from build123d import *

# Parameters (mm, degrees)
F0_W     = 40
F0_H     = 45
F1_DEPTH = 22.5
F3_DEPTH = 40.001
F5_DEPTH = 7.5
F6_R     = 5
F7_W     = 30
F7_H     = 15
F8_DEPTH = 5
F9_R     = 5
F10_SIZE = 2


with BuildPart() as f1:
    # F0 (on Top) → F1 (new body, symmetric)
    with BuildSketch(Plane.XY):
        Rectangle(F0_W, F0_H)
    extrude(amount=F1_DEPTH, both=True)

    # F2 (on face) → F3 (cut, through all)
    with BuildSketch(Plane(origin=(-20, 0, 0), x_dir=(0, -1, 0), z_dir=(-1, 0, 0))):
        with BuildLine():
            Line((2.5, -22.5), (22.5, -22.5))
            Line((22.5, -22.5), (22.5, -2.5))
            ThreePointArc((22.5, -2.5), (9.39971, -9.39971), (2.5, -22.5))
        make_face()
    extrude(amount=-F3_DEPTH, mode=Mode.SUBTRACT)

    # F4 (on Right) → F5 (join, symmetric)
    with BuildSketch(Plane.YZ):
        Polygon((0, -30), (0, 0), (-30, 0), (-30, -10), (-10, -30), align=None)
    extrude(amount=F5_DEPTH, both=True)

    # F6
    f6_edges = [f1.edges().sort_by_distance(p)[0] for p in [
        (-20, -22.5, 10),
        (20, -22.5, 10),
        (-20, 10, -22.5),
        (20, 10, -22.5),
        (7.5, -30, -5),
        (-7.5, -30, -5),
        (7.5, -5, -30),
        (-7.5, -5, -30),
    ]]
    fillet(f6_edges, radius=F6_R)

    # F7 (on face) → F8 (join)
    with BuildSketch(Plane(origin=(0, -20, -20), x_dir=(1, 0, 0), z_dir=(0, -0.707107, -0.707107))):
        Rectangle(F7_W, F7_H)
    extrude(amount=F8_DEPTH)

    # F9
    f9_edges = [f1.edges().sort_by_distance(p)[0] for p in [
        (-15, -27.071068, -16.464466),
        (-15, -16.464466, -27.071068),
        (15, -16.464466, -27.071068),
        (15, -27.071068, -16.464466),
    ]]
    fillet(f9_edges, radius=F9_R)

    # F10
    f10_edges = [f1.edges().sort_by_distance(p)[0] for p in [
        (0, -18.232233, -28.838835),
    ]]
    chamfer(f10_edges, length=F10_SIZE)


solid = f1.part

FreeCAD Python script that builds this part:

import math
import FreeCAD as App
import Part
import Sketcher
from FreeCAD import Vector


def edges_at(feature, points):
    """Names of the edges that pass closest to the given points."""
    edges = feature.Shape.Edges
    near = lambda p: min(range(len(edges)), key=lambda i: edges[i].distToShape(Part.Vertex(*p))[0])
    return sorted({f"Edge{near(p) + 1}" for p in points})


def add_polygon(sketch, points):
    """Adds a closed chain of lines whose ends are joined by coincident constraints."""
    first, n = sketch.GeometryCount, len(points)
    for a, b in zip(points, points[1:] + points[:1]):
        sketch.addGeometry(Part.LineSegment(App.Vector(*a, 0), App.Vector(*b, 0)), False)
    for i in range(n):
        sketch.addConstraint(Sketcher.Constraint("Coincident", first + i, 2, first + (i + 1) % n, 1))

doc = App.newDocument("Part")
body = doc.addObject("PartDesign::Body", "Body")

# Sketch on XY plane
sketch1 = body.newObject("Sketcher::SketchObject", "Sketch")
sketch1.AttachmentSupport = (doc.getObject("XY_Plane"), [""])
sketch1.MapMode = "FlatFace"
add_polygon(sketch1, [(-20, 22), (-20, -22), (20, -22), (20, 22)])  # lines 0-3
sketch1.addConstraint(Sketcher.Constraint("Vertical", 0))
sketch1.addConstraint(Sketcher.Constraint("Horizontal", 1))
sketch1.addConstraint(Sketcher.Constraint("Vertical", 2))
sketch1.addConstraint(Sketcher.Constraint("Horizontal", 3))
sketch1.addConstraint(Sketcher.Constraint("Symmetric", 0, 2, 2, 2, -1, 1))
sketch1.addConstraint(Sketcher.Constraint("DistanceX", 1, 1, 1, 2, 40.0))
sketch1.addConstraint(Sketcher.Constraint("DistanceY", 0, 2, 0, 1, 45.0))
pad1 = body.newObject("PartDesign::Pad", "Pad")
pad1.Profile = sketch1
pad1.Length = 45
pad1.Midplane = True

# Sketch on YZ plane
sketch2 = body.newObject("Sketcher::SketchObject", "Sketch001")
sketch2.AttachmentSupport = (doc.getObject("YZ_Plane"), [""])
sketch2.MapMode = "FlatFace"
sketch2.AttachmentOffset = App.Placement(Vector(0, 0, -20), App.Rotation())
sketch2.addGeometry(Part.LineSegment(Vector(-2, -22, 0), Vector(-22, -22, 0)), False)
sketch2.addGeometry(Part.LineSegment(Vector(-22, -22, 0), Vector(-22, -2, 0)), False)
sketch2.addGeometry(Part.ArcOfCircle(Part.Circle(Vector(-27, -27, 0), Vector(0, 0, 1), 25), math.radians(11), math.radians(79)), False)
sketch2.addConstraint(Sketcher.Constraint("Coincident", 0, 2, 1, 1))
sketch2.addConstraint(Sketcher.Constraint("Coincident", 1, 2, 2, 2))
sketch2.addConstraint(Sketcher.Constraint("Coincident", 2, 1, 0, 1))
sketch2.addConstraint(Sketcher.Constraint("Horizontal", 0))
sketch2.addConstraint(Sketcher.Constraint("Vertical", 1))
sketch2.addConstraint(Sketcher.Constraint("Equal", 0, 1))
sketch2.addConstraint(Sketcher.Constraint("Radius", 2, 24.999999))
sketch2.addConstraint(Sketcher.Constraint("DistanceX", 0, 2, 0, 1, 20.0))
sketch2.addConstraint(Sketcher.Constraint("DistanceX", 0, 2, -1, 1, 22.5))
sketch2.addConstraint(Sketcher.Constraint("DistanceY", 0, 2, -1, 1, 22.5))
pocket1 = body.newObject("PartDesign::Pocket", "Pocket")
pocket1.Profile = sketch2
pocket1.Type = "ThroughAll"
pocket1.Reversed = True

# Sketch on YZ plane
sketch3 = body.newObject("Sketcher::SketchObject", "Sketch002")
sketch3.AttachmentSupport = (doc.getObject("YZ_Plane"), [""])
sketch3.MapMode = "FlatFace"
add_polygon(sketch3, [(0, -30), (0, 0), (-30, 0), (-30, -10), (-10, -30)])  # lines 0-4
sketch3.addConstraint(Sketcher.Constraint("Vertical", 0))
sketch3.addConstraint(Sketcher.Constraint("Horizontal", 1))
sketch3.addConstraint(Sketcher.Constraint("Vertical", 2))
sketch3.addConstraint(Sketcher.Constraint("Horizontal", 4))
sketch3.addConstraint(Sketcher.Constraint("Coincident", 0, 2, -1, 1))
sketch3.addConstraint(Sketcher.Constraint("Equal", 1, 0))
sketch3.addConstraint(Sketcher.Constraint("Equal", 4, 2))
sketch3.addConstraint(Sketcher.Constraint("DistanceX", 1, 2, 1, 1, 30.0))
sketch3.addConstraint(Sketcher.Constraint("DistanceX", 4, 1, 4, 2, 10.0))
pad2 = body.newObject("PartDesign::Pad", "Pad001")
pad2.Profile = sketch3
pad2.Length = 15
pad2.Midplane = True
doc.recompute()

fillet = body.newObject("PartDesign::Fillet", "Fillet")
fillet.Base = (pad2, edges_at(pad2, [
    (-20, -22.5, 10),
    (20, -22.5, 10),
    (-20, 10, -22.5),
    (20, 10, -22.5),
    (7.5, -30, -5),
    (-7.5, -30, -5),
    (7.5, -5, -30),
    (-7.5, -5, -30),
]))
fillet.Radius = 5

# Sketch on an angled plane
sketch4 = body.newObject("Sketcher::SketchObject", "Sketch003")
sketch4.Placement = App.Placement(Vector(0, -20, -20), App.Rotation(Vector(1, 0, 0), Vector(0, -0.707106781, 0.707106781), Vector(0, -0.707106781, -0.707106781), "ZXY"))
add_polygon(sketch4, [(-15, 7), (-15, -7), (15, -7), (15, 7)])  # lines 0-3
sketch4.addConstraint(Sketcher.Constraint("Vertical", 0))
sketch4.addConstraint(Sketcher.Constraint("Horizontal", 1))
sketch4.addConstraint(Sketcher.Constraint("Vertical", 2))
sketch4.addConstraint(Sketcher.Constraint("Horizontal", 3))
sketch4.addConstraint(Sketcher.Constraint("Symmetric", 0, 2, 2, 2, -1, 1))
sketch4.addConstraint(Sketcher.Constraint("DistanceX", 1, 1, 1, 2, 30.0))
sketch4.addConstraint(Sketcher.Constraint("DistanceY", 0, 2, 0, 1, 15.0))
pad3 = body.newObject("PartDesign::Pad", "Pad002")
pad3.Profile = sketch4
pad3.Length = 5
doc.recompute()

fillet2 = body.newObject("PartDesign::Fillet", "Fillet001")
fillet2.Base = (pad3, edges_at(pad3, [
    (-15, -27.071, -16.464),
    (-15, -16.464, -27.071),
    (15, -16.464, -27.071),
    (15, -27.071, -16.464),
]))
fillet2.Radius = 5
doc.recompute()

chamfer = body.newObject("PartDesign::Chamfer", "Chamfer")
chamfer.Base = (fillet2, edges_at(fillet2, [(0, -18.232, -28.839)]))
chamfer.Size = 2

doc.recompute()
